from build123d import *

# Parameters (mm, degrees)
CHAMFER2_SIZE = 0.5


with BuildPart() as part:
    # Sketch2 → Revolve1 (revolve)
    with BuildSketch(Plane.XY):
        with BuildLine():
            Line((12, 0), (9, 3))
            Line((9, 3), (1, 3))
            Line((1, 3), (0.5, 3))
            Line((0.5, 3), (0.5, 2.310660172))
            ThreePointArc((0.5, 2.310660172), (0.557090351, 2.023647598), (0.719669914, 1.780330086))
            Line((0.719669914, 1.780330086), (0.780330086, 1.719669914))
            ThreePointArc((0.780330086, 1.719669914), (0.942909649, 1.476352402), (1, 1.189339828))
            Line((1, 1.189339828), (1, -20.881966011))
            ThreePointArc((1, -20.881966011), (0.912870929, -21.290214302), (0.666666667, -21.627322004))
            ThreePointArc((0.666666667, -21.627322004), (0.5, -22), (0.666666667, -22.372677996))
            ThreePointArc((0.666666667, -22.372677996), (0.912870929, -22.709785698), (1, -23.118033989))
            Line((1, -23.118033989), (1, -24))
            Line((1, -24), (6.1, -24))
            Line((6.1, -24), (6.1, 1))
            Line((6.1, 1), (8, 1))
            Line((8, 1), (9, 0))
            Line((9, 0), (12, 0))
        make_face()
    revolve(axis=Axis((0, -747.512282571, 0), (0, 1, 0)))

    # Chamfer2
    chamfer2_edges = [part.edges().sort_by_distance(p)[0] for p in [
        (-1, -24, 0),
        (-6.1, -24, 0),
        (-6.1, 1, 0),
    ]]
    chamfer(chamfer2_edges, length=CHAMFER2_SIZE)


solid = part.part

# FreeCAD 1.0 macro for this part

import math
import FreeCAD as App
import Part
import Sketcher
Q = App.Units.Quantity


def edges_at(feature, points):
    """Names of the edges that pass closest to the given points."""
    edges = feature.Shape.Edges
    near = lambda p: min(range(len(edges)), key=lambda i: edges[i].distToShape(Part.Vertex(*p))[0])
    return sorted({f"Edge{near(p) + 1}" for p in points})

doc = App.newDocument("Part")
body = doc.addObject("PartDesign::Body", "Body")

sketch1 = doc.addObject("Sketcher::SketchObject", "Sketch")
body.addObject(sketch1)
sketch1.AttachmentSupport = (doc.XY_Plane, [""])
sketch1.MapMode = "FlatFace"
sketch1.addGeometry(Part.LineSegment(App.Vector(12, 0, 0), App.Vector(9, 3, 0)), False)
sketch1.addGeometry(Part.LineSegment(App.Vector(9, 3, 0), App.Vector(0.5, 3, 0)), False)
sketch1.addGeometry(Part.LineSegment(App.Vector(0.5, 3, 0), App.Vector(0.5, 2.31, 0)), False)
sketch1.addGeometry(Part.ArcOfCircle(Part.Circle(App.Vector(1.25, 2.31, 0), App.Vector(0, 0, 1), 0.75), math.radians(-180), math.radians(-135)), False)
sketch1.addGeometry(Part.LineSegment(App.Vector(0.72, 1.78, 0), App.Vector(0.78, 1.72, 0)), False)
sketch1.addGeometry(Part.ArcOfCircle(Part.Circle(App.Vector(0.25, 1.19, 0), App.Vector(0, 0, 1), 0.75), math.radians(0), math.radians(45)), False)
sketch1.addGeometry(Part.LineSegment(App.Vector(1, 1.19, 0), App.Vector(1, -20.88, 0)), False)
sketch1.addGeometry(Part.ArcOfCircle(Part.Circle(App.Vector(0, -20.88, 0), App.Vector(0, 0, 1), 1), math.radians(-48), math.radians(0)), False)
sketch1.addGeometry(Part.ArcOfCircle(Part.Circle(App.Vector(1, -22, 0), App.Vector(0, 0, 1), 0.5), math.radians(132), math.radians(228)), False)
sketch1.addGeometry(Part.ArcOfCircle(Part.Circle(App.Vector(0, -23.12, 0), App.Vector(0, 0, 1), 1), math.radians(0), math.radians(48)), False)
sketch1.addGeometry(Part.LineSegment(App.Vector(1, -23.12, 0), App.Vector(1, -24, 0)), False)
sketch1.addGeometry(Part.LineSegment(App.Vector(1, -24, 0), App.Vector(6.1, -24, 0)), False)
sketch1.addGeometry(Part.LineSegment(App.Vector(6.1, -24, 0), App.Vector(6.1, 1, 0)), False)
sketch1.addGeometry(Part.LineSegment(App.Vector(6.1, 1, 0), App.Vector(8, 1, 0)), False)
sketch1.addGeometry(Part.LineSegment(App.Vector(8, 1, 0), App.Vector(9, 0, 0)), False)
sketch1.addGeometry(Part.LineSegment(App.Vector(9, 0, 0), App.Vector(12, 0, 0)), False)
sketch1.addConstraint(Sketcher.Constraint("Coincident", 0, 2, 1, 1))
sketch1.addConstraint(Sketcher.Constraint("Coincident", 1, 2, 2, 1))
sketch1.addConstraint(Sketcher.Constraint("Tangent", 2, 2, 3, 1))
sketch1.addConstraint(Sketcher.Constraint("Tangent", 3, 2, 4, 1))
sketch1.addConstraint(Sketcher.Constraint("Tangent", 4, 2, 5, 2))
sketch1.addConstraint(Sketcher.Constraint("Tangent", 5, 1, 6, 1))
sketch1.addConstraint(Sketcher.Constraint("Tangent", 6, 2, 7, 2))
sketch1.addConstraint(Sketcher.Constraint("Tangent", 7, 1, 8, 1))
sketch1.addConstraint(Sketcher.Constraint("Tangent", 8, 2, 9, 2))
sketch1.addConstraint(Sketcher.Constraint("Tangent", 9, 1, 10, 1))
sketch1.addConstraint(Sketcher.Constraint("Coincident", 10, 2, 11, 1))
sketch1.addConstraint(Sketcher.Constraint("Coincident", 11, 2, 12, 1))
sketch1.addConstraint(Sketcher.Constraint("Coincident", 12, 2, 13, 1))
sketch1.addConstraint(Sketcher.Constraint("Coincident", 13, 2, 14, 1))
sketch1.addConstraint(Sketcher.Constraint("Coincident", 14, 2, 15, 1))
sketch1.addConstraint(Sketcher.Constraint("Coincident", 15, 2, 0, 1))
sketch1.addConstraint(Sketcher.Constraint("Horizontal", 1))
sketch1.addConstraint(Sketcher.Constraint("Vertical", 2))
sketch1.addConstraint(Sketcher.Constraint("Vertical", 6))
sketch1.addConstraint(Sketcher.Constraint("Vertical", 10))
sketch1.addConstraint(Sketcher.Constraint("Horizontal", 11))
sketch1.addConstraint(Sketcher.Constraint("Vertical", 12))
sketch1.addConstraint(Sketcher.Constraint("Horizontal", 13))
sketch1.addConstraint(Sketcher.Constraint("Horizontal", 15))
sketch1.addConstraint(Sketcher.Constraint("Equal", 3, 5))
sketch1.addConstraint(Sketcher.Constraint("Equal", 7, 9))
sketch1.addConstraint(Sketcher.Constraint("PointOnObject", 7, 3, -2))
sketch1.addConstraint(Sketcher.Constraint("PointOnObject", 9, 3, -2))
sketch1.addConstraint(Sketcher.Constraint("PointOnObject", 14, 2, -1))
sketch1.addConstraint(Sketcher.Constraint("Parallel", 0, 4))
sketch1.addConstraint(Sketcher.Constraint("Parallel", 4, 14))
sketch1.addConstraint(Sketcher.Constraint("Vertical", 8, 3, 5, 1))
sketch1.addConstraint(Sketcher.Constraint("Vertical", 0, 2, 14, 2))
sketch1.addConstraint(Sketcher.Constraint("Radius", 7, Q("1 mm")))
sketch1.addConstraint(Sketcher.Constraint("Radius", 8, Q("0.5 mm")))
sketch1.addConstraint(Sketcher.Constraint("DistanceX", 15, 1, 15, 2, Q("3 mm")))
sketch1.addConstraint(Sketcher.Constraint("DistanceY", 12, 1, 12, 2, Q("25 mm")))
sketch1.addConstraint(Sketcher.Constraint("Angle", 0, Q("135 deg")))
sketch1.addConstraint(Sketcher.Constraint("Radius", 3, Q("0.75 mm")))
sketch1.addConstraint(Sketcher.Constraint("DistanceX", 1, 2, 1, 1, Q("8.5 mm")))
sketch1.addConstraint(Sketcher.Constraint("DistanceX", 11, 1, 11, 2, Q("5.1 mm")))
sketch1.addConstraint(Sketcher.Constraint("DistanceX", 13, 1, 13, 2, Q("1.9 mm")))
sketch1.addConstraint(Sketcher.Constraint("DistanceY", 8, 3, -1, 1, Q("22 mm")))
sketch1.addConstraint(Sketcher.Constraint("DistanceX", -1, 1, 0, 2, Q("9 mm")))
sketch1.addConstraint(Sketcher.Constraint("DistanceY", 2, 2, 2, 1, Q("0.68934 mm")))
revolution = doc.addObject("PartDesign::Revolution", "Revolution")
body.addObject(revolution)
revolution.Profile = sketch1
revolution.ReferenceAxis = (sketch1, ["V_Axis"])
revolution.Angle = 360
doc.recompute()

chamfer = doc.addObject("PartDesign::Chamfer", "Chamfer")
body.addObject(chamfer)
chamfer.Base = (revolution, edges_at(revolution, [(-1, -24, 0), (-6.1, -24, 0), (-6.1, 1, 0)]))
chamfer.Size = 0.5

doc.recompute()
